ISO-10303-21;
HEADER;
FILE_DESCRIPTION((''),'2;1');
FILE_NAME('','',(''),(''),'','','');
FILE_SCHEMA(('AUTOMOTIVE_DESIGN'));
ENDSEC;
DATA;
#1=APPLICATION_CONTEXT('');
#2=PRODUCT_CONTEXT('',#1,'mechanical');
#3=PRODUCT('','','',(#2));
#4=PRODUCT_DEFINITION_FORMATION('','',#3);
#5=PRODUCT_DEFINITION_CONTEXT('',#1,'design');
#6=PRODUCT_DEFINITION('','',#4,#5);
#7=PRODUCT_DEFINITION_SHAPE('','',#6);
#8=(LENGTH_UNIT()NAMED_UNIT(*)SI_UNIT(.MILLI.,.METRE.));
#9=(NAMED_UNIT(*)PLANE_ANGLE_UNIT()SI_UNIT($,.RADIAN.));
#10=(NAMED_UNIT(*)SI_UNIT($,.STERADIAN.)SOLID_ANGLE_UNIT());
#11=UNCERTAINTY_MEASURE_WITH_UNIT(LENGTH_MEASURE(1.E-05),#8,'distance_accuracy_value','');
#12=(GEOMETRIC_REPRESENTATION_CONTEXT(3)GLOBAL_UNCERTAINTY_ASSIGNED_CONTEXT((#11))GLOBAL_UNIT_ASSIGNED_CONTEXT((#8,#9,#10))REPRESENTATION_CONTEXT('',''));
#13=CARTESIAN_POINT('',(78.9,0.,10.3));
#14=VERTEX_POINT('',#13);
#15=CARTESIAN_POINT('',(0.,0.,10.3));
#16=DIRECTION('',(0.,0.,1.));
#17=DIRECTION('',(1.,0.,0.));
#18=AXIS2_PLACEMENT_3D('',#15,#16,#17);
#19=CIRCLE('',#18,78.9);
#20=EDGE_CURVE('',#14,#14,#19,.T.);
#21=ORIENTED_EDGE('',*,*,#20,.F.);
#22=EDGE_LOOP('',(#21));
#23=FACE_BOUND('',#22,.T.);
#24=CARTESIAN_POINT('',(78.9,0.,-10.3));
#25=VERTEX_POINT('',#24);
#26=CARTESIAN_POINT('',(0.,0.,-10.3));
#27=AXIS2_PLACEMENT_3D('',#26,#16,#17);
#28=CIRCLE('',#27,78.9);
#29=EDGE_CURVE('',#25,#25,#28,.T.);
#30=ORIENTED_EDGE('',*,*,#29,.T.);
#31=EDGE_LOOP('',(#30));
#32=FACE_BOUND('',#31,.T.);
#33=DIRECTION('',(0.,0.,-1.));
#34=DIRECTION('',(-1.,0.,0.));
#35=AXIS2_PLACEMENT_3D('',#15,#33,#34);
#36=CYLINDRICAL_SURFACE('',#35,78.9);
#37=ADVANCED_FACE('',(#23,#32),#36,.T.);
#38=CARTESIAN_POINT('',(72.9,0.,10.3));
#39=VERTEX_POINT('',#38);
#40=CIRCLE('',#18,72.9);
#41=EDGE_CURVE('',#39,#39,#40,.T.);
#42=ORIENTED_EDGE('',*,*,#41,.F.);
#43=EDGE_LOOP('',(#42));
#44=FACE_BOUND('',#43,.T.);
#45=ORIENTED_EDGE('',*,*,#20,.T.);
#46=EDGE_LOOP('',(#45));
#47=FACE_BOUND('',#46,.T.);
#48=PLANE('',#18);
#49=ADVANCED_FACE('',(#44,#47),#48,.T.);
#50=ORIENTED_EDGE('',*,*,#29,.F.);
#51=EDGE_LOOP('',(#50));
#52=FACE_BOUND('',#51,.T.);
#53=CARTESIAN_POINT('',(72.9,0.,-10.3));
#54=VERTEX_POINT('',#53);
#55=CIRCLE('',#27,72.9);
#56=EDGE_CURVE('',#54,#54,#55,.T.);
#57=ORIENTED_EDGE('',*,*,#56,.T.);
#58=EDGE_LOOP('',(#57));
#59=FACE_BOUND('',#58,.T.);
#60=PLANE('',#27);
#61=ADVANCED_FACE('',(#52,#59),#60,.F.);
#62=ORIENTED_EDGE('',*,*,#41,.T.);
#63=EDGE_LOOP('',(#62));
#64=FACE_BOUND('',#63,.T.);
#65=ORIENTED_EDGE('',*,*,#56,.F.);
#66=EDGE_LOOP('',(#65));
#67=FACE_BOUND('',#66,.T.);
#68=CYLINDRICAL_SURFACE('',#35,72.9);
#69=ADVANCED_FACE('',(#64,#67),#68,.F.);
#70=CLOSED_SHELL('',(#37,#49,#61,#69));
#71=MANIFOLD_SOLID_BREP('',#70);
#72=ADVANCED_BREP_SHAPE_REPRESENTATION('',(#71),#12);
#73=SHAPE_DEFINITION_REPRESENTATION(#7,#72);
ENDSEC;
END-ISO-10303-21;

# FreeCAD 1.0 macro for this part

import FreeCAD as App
import Part
import Sketcher
from FreeCAD import Vector
Q = App.Units.Quantity

doc = App.newDocument("Part")
body = doc.addObject("PartDesign::Body", "Body")

sketch1 = doc.addObject("Sketcher::SketchObject", "Sketch")
body.addObject(sketch1)
sketch1.AttachmentSupport = (doc.XY_Plane, [""])
sketch1.MapMode = "FlatFace"
sketch1.addGeometry([
    Part.Circle(Vector(0, 0, 0), Vector(0, 0, 1), 79),
    Part.Circle(Vector(0, 0, 0), Vector(0, 0, 1), 73),
], False)
sketch1.addConstraint([
    Sketcher.Constraint("Coincident", 0, 3, -1, 1),
    Sketcher.Constraint("Coincident", 1, 3, -1, 1),
    Sketcher.Constraint("Diameter", 0, Q("157.8 mm")),
    Sketcher.Constraint("Diameter", 1, Q("145.8 mm")),
])
pad1 = doc.addObject("PartDesign::Pad", "Pad")
body.addObject(pad1)
pad1.Profile = sketch1
pad1.Length = 20.6
pad1.Midplane = True

doc.recompute()
